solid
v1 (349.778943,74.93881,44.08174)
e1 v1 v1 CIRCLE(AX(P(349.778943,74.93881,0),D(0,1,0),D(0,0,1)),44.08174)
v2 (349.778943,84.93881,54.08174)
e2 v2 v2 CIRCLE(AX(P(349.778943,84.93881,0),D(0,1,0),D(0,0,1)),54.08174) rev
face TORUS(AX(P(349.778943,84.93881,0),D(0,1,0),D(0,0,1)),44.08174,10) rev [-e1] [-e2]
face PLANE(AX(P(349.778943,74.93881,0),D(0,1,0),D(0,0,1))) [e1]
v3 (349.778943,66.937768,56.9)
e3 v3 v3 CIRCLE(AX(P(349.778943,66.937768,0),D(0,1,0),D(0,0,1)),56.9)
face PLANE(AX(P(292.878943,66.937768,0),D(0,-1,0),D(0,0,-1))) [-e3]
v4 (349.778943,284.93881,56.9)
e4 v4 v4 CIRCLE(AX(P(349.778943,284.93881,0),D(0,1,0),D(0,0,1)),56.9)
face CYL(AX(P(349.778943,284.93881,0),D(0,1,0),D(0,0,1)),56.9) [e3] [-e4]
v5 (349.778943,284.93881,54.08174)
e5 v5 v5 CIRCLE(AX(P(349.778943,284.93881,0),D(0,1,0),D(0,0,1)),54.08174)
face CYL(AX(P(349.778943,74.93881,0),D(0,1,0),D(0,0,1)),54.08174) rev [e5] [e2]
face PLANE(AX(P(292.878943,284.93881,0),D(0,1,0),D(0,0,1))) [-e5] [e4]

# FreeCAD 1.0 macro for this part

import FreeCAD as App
import Part
import Sketcher
Q = App.Units.Quantity


def edges_at(feature, points):
    """Names of the edges that pass closest to the given points."""
    edges = feature.Shape.Edges
    near = lambda p: min(range(len(edges)), key=lambda i: edges[i].distToShape(Part.Vertex(*p))[0])
    return sorted({f"Edge{near(p) + 1}" for p in points})


def add_polygon(sketch, points):
    """Adds a closed chain of lines whose ends are joined by coincident constraints."""
    first, n = sketch.GeometryCount, len(points)
    for a, b in zip(points, points[1:] + points[:1]):
        sketch.addGeometry(Part.LineSegment(App.Vector(*a, 0), App.Vector(*b, 0)), False)
    for i in range(n):
        sketch.addConstraint(Sketcher.Constraint("Coincident", first + i, 2, first + (i + 1) % n, 1))

doc = App.newDocument("Part")
body = doc.addObject("PartDesign::Body", "Body")

# Sketch on XY plane
sketch1 = body.newObject("Sketcher::SketchObject", "Sketch")
sketch1.AttachmentSupport = (doc.getObject("XY_Plane"), [""])
sketch1.MapMode = "FlatFace"
add_polygon(sketch1, [(293, 285), (293, 67), (350, 67), (350, 285)])  # lines 0-3
sketch1.addGeometry(Part.LineSegment(App.Vector(350, 285, 0), App.Vector(350, 67, 0)), True)  # axis
sketch1.addConstraint(Sketcher.Constraint("Vertical", 0))
sketch1.addConstraint(Sketcher.Constraint("Horizontal", 1))
sketch1.addConstraint(Sketcher.Constraint("Vertical", 2))
sketch1.addConstraint(Sketcher.Constraint("Horizontal", 3))
sketch1.addConstraint(Sketcher.Constraint("Vertical", 4))
sketch1.addConstraint(Sketcher.Constraint("Coincident", 4, 1, 2, 2))
sketch1.addConstraint(Sketcher.Constraint("Horizontal", 0, 2, 4, 2))
sketch1.addConstraint(Sketcher.Constraint("DistanceX", 1, 1, 1, 2, Q("56.9 mm")))
sketch1.addConstraint(Sketcher.Constraint("DistanceY", 0, 2, 0, 1, Q("218.001043 mm")))
sketch1.addConstraint(Sketcher.Constraint("DistanceY", -1, 1, 2, 2, Q("284.93881 mm")))
sketch1.addConstraint(Sketcher.Constraint("DistanceX", -1, 1, 0, 2, Q("292.878943 mm")))
revolution = body.newObject("PartDesign::Revolution", "Revolution")
revolution.Profile = sketch1
revolution.ReferenceAxis = (sketch1, ["Axis0"])
revolution.Angle = 360

# Sketch on XZ plane
sketch2 = body.newObject("Sketcher::SketchObject", "Sketch001")
sketch2.AttachmentSupport = (doc.getObject("XZ_Plane"), [""])
sketch2.MapMode = "FlatFace"
sketch2.AttachmentOffset = App.Placement(App.Vector(0, 0, -284.93881), App.Rotation())
sketch2.addGeometry(Part.Circle(App.Vector(350, 0, 0), App.Vector(0, 0, 1), 54), False)
sketch2.addConstraint(Sketcher.Constraint("PointOnObject", 0, 3, -1))
sketch2.addConstraint(Sketcher.Constraint("Diameter", 0, Q("108.16348 mm")))
sketch2.addConstraint(Sketcher.Constraint("DistanceX", -1, 1, 0, 3, Q("349.778943 mm")))
pocket1 = body.newObject("PartDesign::Pocket", "Pocket")
pocket1.Profile = sketch2
pocket1.Length = 210
pocket1.Reversed = True
doc.recompute()

fillet = body.newObject("PartDesign::Fillet", "Fillet")
fillet.Base = (pocket1, edges_at(pocket1, [(349.779, 74.939, -54.082)]))
fillet.Radius = 10

doc.recompute()
